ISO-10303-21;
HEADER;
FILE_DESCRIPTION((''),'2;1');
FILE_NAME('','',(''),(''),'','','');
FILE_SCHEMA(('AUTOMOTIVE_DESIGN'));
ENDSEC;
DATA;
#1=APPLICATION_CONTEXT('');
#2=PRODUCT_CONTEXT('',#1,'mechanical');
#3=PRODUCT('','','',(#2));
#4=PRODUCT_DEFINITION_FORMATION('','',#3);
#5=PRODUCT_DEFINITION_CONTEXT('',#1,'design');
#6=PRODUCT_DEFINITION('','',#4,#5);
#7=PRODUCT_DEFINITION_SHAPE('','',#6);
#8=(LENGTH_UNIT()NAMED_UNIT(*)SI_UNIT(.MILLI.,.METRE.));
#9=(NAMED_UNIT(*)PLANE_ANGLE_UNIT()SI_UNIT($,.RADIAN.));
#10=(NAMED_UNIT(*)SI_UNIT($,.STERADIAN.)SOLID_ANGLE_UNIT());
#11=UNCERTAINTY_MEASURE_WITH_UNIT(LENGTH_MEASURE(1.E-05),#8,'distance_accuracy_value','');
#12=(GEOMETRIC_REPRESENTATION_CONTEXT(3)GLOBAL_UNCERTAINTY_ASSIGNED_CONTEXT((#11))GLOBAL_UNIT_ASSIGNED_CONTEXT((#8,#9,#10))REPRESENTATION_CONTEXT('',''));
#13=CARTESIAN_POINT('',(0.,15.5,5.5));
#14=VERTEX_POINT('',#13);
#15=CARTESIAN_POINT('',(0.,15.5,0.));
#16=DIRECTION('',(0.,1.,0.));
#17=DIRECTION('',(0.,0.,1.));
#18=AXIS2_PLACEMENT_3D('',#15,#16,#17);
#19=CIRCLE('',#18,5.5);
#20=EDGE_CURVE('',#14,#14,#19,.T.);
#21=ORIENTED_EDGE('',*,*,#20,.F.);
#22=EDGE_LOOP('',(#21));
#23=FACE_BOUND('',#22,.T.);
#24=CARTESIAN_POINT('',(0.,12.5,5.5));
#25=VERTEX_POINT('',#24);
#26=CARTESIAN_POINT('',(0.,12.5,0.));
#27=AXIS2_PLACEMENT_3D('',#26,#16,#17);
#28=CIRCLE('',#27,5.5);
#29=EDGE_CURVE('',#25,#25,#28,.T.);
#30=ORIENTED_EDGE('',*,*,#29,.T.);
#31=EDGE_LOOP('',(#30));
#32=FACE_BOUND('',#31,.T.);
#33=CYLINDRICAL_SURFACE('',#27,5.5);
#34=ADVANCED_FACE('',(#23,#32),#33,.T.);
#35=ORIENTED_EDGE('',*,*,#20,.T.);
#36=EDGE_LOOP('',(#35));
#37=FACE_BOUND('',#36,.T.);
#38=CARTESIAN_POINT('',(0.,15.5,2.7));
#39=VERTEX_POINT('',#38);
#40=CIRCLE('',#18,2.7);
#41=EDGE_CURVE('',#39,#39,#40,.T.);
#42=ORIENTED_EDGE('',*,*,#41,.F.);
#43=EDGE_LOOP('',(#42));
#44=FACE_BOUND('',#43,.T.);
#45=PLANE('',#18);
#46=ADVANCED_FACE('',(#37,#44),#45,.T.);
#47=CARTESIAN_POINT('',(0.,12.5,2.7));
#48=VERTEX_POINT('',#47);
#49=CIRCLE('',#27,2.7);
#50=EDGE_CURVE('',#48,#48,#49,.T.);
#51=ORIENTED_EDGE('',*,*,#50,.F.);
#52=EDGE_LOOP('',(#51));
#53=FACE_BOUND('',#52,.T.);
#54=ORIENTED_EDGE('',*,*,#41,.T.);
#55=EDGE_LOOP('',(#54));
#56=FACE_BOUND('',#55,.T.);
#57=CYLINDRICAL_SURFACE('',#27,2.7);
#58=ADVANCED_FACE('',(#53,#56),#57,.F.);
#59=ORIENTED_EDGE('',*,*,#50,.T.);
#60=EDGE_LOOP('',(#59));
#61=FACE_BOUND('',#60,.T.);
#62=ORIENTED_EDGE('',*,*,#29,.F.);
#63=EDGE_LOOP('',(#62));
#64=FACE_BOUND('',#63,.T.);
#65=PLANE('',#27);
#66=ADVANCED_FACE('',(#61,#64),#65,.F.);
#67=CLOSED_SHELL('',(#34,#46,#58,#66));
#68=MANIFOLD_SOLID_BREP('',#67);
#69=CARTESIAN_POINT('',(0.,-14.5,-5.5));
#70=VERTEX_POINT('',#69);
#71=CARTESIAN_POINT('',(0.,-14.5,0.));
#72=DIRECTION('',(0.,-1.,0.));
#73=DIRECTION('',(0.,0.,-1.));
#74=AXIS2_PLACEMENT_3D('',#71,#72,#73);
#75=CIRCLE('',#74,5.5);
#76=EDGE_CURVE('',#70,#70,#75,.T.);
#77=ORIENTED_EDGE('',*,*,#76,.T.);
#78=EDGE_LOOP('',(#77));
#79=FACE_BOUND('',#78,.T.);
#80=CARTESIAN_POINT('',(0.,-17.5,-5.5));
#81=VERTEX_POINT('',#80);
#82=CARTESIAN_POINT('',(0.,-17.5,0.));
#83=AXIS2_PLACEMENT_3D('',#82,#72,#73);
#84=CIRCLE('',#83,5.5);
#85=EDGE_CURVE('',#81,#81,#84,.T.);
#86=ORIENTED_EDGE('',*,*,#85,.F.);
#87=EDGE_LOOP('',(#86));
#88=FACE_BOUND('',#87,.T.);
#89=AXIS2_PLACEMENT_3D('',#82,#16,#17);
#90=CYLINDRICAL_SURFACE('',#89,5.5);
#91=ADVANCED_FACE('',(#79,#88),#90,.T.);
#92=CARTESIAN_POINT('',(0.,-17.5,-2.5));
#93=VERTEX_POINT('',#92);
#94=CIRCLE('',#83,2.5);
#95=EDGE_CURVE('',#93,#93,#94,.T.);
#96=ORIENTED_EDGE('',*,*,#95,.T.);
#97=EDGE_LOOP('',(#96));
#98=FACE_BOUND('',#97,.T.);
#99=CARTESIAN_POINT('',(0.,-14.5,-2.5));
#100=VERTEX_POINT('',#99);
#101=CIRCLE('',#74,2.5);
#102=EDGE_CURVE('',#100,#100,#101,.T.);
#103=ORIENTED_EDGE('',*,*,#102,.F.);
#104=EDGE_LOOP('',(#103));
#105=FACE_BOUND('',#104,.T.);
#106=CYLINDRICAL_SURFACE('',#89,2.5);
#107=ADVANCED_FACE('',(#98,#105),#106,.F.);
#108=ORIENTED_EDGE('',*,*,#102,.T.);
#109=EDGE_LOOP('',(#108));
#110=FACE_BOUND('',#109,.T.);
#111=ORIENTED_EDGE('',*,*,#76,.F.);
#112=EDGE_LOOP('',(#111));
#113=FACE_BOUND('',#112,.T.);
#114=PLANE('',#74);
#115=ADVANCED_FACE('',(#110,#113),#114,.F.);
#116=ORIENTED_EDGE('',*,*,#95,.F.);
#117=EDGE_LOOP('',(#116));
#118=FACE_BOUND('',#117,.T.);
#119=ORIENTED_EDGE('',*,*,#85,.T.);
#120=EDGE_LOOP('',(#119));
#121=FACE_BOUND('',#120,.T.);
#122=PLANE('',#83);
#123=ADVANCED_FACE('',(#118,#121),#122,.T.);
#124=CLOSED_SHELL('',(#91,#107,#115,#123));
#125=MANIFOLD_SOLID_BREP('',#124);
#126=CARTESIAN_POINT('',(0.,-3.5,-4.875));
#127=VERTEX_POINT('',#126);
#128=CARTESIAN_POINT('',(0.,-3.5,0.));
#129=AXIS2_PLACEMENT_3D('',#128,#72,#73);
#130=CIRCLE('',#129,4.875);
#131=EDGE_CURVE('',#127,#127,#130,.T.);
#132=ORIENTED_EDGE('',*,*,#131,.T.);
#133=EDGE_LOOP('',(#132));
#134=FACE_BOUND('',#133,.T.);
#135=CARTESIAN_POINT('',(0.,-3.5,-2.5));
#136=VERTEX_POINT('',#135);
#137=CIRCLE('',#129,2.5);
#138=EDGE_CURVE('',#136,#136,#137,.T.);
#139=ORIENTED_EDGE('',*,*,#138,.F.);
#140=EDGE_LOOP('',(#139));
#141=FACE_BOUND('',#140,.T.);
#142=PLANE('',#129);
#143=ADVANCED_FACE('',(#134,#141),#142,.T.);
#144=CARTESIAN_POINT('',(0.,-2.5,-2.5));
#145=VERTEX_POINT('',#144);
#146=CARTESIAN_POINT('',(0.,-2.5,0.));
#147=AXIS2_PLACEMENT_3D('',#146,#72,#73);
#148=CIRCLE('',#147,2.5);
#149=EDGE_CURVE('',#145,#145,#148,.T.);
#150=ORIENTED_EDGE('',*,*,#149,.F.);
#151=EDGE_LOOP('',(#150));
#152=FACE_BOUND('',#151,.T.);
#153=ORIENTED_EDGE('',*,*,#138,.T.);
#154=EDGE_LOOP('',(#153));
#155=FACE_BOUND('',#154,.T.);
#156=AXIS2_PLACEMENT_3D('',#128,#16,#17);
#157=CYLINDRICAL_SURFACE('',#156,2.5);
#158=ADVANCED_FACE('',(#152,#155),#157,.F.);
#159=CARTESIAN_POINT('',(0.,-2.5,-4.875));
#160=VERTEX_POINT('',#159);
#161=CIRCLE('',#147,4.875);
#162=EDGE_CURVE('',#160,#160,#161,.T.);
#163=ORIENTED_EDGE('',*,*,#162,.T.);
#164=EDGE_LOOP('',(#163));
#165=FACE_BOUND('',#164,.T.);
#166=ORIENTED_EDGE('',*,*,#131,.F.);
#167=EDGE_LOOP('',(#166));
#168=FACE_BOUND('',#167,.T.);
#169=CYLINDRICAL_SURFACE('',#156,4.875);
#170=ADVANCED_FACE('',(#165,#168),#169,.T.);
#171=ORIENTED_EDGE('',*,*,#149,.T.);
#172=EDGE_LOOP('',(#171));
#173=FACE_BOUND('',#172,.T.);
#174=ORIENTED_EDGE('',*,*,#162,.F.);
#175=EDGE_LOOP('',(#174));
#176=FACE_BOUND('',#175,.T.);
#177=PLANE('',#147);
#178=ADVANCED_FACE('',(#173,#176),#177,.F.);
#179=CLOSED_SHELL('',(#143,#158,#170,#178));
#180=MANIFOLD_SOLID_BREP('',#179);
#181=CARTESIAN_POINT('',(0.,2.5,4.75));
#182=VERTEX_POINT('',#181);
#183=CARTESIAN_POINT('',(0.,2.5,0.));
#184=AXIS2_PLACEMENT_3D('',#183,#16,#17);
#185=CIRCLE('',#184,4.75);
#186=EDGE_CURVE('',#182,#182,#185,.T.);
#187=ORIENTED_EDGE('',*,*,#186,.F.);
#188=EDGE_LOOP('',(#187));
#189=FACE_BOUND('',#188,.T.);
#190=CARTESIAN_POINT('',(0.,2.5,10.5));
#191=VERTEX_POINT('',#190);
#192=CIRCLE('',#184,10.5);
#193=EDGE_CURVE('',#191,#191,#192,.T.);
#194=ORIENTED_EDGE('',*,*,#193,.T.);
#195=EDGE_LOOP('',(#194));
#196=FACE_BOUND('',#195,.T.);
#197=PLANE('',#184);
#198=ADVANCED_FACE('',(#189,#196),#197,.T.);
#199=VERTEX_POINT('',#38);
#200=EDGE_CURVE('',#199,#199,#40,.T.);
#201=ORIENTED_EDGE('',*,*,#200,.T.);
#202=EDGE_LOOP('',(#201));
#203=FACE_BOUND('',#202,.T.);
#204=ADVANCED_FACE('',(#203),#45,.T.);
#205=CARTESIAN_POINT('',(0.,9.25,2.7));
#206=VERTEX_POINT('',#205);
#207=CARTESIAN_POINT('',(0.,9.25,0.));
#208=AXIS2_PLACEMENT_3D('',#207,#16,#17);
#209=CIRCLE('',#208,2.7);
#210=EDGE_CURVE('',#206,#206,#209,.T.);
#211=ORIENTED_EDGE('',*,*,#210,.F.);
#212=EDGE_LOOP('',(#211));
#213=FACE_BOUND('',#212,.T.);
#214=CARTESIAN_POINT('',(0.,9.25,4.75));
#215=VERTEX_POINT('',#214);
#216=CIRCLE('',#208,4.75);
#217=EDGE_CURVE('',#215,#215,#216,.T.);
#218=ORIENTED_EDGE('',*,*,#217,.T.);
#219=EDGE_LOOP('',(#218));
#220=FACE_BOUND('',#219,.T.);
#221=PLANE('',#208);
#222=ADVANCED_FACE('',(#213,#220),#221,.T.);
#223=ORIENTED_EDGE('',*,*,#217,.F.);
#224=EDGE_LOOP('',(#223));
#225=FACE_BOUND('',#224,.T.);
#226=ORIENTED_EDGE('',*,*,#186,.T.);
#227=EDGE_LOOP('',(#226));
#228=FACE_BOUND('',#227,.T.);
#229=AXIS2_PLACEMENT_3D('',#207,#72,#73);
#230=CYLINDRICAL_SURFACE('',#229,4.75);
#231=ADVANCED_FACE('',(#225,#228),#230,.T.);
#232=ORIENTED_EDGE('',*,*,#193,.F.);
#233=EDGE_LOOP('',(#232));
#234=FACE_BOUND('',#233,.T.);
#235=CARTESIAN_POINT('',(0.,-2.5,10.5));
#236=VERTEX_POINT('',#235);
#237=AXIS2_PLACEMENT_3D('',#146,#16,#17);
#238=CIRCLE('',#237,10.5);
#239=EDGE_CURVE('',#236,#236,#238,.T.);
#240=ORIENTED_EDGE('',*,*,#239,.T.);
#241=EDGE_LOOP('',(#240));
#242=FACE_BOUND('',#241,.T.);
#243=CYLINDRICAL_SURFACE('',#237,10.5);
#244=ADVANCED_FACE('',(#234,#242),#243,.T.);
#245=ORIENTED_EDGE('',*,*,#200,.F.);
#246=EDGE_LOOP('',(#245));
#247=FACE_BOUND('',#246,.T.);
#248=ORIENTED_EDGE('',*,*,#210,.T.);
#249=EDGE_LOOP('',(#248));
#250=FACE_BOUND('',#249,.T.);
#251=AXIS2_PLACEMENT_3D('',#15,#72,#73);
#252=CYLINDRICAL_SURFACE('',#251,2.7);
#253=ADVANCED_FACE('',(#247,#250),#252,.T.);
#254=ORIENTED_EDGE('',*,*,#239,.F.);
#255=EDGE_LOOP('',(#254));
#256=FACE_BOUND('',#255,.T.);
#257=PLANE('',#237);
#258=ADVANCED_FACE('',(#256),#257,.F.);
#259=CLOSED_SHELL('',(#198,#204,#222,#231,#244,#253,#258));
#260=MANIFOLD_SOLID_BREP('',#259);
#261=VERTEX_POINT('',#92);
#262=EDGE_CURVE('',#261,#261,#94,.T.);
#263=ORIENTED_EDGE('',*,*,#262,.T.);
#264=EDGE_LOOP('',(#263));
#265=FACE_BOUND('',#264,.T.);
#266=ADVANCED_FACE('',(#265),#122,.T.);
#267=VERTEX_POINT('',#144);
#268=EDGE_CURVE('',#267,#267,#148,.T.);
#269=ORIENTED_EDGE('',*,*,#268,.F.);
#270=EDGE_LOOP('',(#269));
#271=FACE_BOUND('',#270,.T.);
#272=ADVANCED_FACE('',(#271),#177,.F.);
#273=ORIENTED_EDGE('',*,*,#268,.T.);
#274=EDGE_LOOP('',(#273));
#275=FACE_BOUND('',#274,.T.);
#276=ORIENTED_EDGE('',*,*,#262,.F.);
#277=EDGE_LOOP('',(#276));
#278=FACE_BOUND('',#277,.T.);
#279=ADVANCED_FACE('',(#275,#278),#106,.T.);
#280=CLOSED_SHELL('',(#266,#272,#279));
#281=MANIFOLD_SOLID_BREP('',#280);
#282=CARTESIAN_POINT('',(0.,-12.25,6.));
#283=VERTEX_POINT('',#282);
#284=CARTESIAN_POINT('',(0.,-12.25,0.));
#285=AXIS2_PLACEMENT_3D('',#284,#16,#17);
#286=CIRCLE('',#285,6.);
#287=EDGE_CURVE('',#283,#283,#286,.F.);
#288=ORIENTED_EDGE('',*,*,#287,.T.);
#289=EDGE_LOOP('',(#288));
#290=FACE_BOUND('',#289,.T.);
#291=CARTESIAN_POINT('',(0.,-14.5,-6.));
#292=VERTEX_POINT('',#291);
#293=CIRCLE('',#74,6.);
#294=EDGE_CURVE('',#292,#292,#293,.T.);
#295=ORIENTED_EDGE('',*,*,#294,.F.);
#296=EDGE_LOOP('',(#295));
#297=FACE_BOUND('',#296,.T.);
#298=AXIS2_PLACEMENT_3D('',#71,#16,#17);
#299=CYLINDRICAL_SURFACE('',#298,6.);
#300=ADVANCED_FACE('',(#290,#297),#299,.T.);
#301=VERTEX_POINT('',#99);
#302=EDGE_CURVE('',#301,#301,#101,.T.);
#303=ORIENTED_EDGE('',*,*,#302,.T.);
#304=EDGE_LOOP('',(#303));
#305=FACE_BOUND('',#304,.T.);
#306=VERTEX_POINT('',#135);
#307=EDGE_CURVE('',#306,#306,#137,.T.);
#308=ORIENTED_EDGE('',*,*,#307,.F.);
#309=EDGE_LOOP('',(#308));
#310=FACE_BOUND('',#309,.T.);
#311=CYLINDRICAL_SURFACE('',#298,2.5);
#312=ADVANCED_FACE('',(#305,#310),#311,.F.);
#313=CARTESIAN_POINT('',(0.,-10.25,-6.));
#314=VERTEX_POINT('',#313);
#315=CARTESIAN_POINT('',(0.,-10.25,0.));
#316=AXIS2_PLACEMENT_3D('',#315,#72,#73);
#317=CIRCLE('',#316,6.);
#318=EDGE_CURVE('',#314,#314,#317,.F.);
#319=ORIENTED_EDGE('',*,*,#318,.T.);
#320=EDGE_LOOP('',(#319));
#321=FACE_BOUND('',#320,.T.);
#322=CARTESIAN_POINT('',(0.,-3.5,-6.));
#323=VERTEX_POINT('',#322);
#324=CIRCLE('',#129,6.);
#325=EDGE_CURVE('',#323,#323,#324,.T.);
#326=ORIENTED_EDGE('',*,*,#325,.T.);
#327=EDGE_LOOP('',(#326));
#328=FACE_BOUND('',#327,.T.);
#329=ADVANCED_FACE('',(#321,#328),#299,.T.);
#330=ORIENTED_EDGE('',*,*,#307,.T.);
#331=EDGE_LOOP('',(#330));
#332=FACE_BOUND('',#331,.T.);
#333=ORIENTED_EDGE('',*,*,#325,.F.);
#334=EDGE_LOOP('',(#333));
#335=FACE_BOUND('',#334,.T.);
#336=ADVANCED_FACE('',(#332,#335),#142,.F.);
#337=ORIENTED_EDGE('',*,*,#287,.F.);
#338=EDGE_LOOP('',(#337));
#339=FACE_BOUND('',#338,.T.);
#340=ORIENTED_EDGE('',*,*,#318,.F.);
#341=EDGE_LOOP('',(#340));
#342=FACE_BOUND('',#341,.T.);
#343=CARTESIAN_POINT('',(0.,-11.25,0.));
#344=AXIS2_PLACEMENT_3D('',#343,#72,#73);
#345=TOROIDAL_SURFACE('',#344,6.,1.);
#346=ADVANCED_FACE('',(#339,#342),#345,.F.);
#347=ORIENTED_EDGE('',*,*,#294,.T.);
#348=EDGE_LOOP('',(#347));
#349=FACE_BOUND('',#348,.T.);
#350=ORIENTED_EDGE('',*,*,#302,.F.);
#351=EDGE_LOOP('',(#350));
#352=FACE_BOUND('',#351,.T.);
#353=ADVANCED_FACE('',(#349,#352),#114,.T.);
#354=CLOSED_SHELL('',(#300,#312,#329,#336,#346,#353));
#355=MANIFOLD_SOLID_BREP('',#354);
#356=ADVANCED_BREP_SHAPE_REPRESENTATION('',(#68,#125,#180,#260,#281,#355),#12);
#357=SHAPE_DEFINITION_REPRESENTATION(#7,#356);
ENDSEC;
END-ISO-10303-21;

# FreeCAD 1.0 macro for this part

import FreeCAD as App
import Part
import Sketcher

doc = App.newDocument("Part")
params = doc.addObject("Spreadsheet::Sheet", "Params")
for row, (alias, value) in enumerate([
    ("sketch1_diameter", "21 mm"),
    ("pad1_length", "2.5 mm"),
    ("pad1_length2", "2.5 mm"),
    ("sketch2_diameter", "9.5 mm"),
    ("pad2_length", "6.75 mm"),
    ("sketch3_diameter", "5.4 mm"),
    ("pad3_length", "6.25 mm"),
    ("sketch4_diameter", "11 mm"),
    ("sketch4_diameter2", "5.4 mm"),
    ("pad4_length", "3 mm"),
    ("sketch5_diameter", "5 mm"),
    ("pad5_length", "15 mm"),
    ("sketch6_diameter", "5 mm"),
    ("sketch6_diameter2", "9.75 mm"),
    ("pad6_length", "1 mm"),
    ("sketch7_diameter", "12 mm"),
    ("sketch7_diameter2", "5 mm"),
    ("pad7_length", "11 mm"),
    ("sketch8_diameter", "2 mm"),
    ("groove_angle", "360 deg"),
    ("sketch9_diameter", "11 mm"),
    ("sketch9_diameter2", "5 mm"),
    ("pad8_length", "3 mm"),
], start=1):
    params.set(f"A{row}", alias)
    params.set(f"B{row}", "=" + value)
    params.setAlias(f"B{row}", alias)

body = doc.addObject("PartDesign::Body", "Body")

# Sketch on XZ plane
sketch1 = body.newObject("Sketcher::SketchObject", "Sketch")
sketch1.AttachmentSupport = (doc.getObject("XZ_Plane"), [""])
sketch1.MapMode = "FlatFace"
sketch1.addGeometry(Part.Circle(App.Vector(0, 0, 0), App.Vector(0, 0, 1), 10), False)
sketch1.addConstraint([
    Sketcher.Constraint("Coincident", 0, 3, -1, 1),
    Sketcher.Constraint("Diameter", 0, 21.0),
])
sketch1.setExpression("Constraints[1]", "Params.sketch1_diameter")
pad1 = body.newObject("PartDesign::Pad", "Pad")
pad1.Profile = sketch1
pad1.Type = "TwoLengths"
pad1.setExpression("Length", "Params.pad1_length")
pad1.setExpression("Length2", "Params.pad1_length2")
pad1.Reversed = True

# Sketch on XZ plane
sketch2 = body.newObject("Sketcher::SketchObject", "Sketch001")
sketch2.AttachmentSupport = (doc.getObject("XZ_Plane"), [""])
sketch2.MapMode = "FlatFace"
sketch2.AttachmentOffset = App.Placement(App.Vector(0, 0, -2.5), App.Rotation())
sketch2.addGeometry(Part.Circle(App.Vector(0, 0, 0), App.Vector(0, 0, 1), 4.8), False)
sketch2.addConstraint([
    Sketcher.Constraint("Coincident", 0, 3, -1, 1),
    Sketcher.Constraint("Diameter", 0, 9.5),
])
sketch2.setExpression("Constraints[1]", "Params.sketch2_diameter")
pad2 = body.newObject("PartDesign::Pad", "Pad001")
pad2.Profile = sketch2
pad2.setExpression("Length", "Params.pad2_length")
pad2.Reversed = True

# Sketch on XZ plane
sketch3 = body.newObject("Sketcher::SketchObject", "Sketch002")
sketch3.AttachmentSupport = (doc.getObject("XZ_Plane"), [""])
sketch3.MapMode = "FlatFace"
sketch3.AttachmentOffset = App.Placement(App.Vector(0, 0, -9.25), App.Rotation())
sketch3.addGeometry(Part.Circle(App.Vector(0, 0, 0), App.Vector(0, 0, 1), 2.7), False)
sketch3.addConstraint([
    Sketcher.Constraint("Coincident", 0, 3, -1, 1),
    Sketcher.Constraint("Diameter", 0, 5.4),
])
sketch3.setExpression("Constraints[1]", "Params.sketch3_diameter")
pad3 = body.newObject("PartDesign::Pad", "Pad002")
pad3.Profile = sketch3
pad3.setExpression("Length", "Params.pad3_length")
pad3.Reversed = True
body2 = doc.addObject("PartDesign::Body", "Body001")

# Sketch on XZ plane
sketch4 = body2.newObject("Sketcher::SketchObject", "Sketch003")
sketch4.AttachmentSupport = (doc.getObject("XZ_Plane001"), [""])
sketch4.MapMode = "FlatFace"
sketch4.AttachmentOffset = App.Placement(App.Vector(0, 0, -15.5), App.Rotation())
sketch4.addGeometry([
    Part.Circle(App.Vector(0, 0, 0), App.Vector(0, 0, 1), 5.5),
    Part.Circle(App.Vector(0, 0, 0), App.Vector(0, 0, 1), 2.7),
], False)
sketch4.addConstraint([
    Sketcher.Constraint("Coincident", 0, 3, -1, 1),
    Sketcher.Constraint("Coincident", 1, 3, -1, 1),
    Sketcher.Constraint("Diameter", 0, 11.0),
    Sketcher.Constraint("Diameter", 1, 5.4),
])
sketch4.setExpression("Constraints[2]", "Params.sketch4_diameter")
sketch4.setExpression("Constraints[3]", "Params.sketch4_diameter2")
pad4 = body2.newObject("PartDesign::Pad", "Pad003")
pad4.Profile = sketch4
pad4.setExpression("Length", "Params.pad4_length")
body3 = doc.addObject("PartDesign::Body", "Body002")

# Sketch on XZ plane
sketch5 = body3.newObject("Sketcher::SketchObject", "Sketch004")
sketch5.AttachmentSupport = (doc.getObject("XZ_Plane002"), [""])
sketch5.MapMode = "FlatFace"
sketch5.AttachmentOffset = App.Placement(App.Vector(0, 0, 2.5), App.Rotation())
sketch5.addGeometry(Part.Circle(App.Vector(0, 0, 0), App.Vector(0, 0, 1), 2.5), False)
sketch5.addConstraint([
    Sketcher.Constraint("Coincident", 0, 3, -1, 1),
    Sketcher.Constraint("Diameter", 0, 5.0),
])
sketch5.setExpression("Constraints[1]", "Params.sketch5_diameter")
pad5 = body3.newObject("PartDesign::Pad", "Pad004")
pad5.Profile = sketch5
pad5.setExpression("Length", "Params.pad5_length")
body4 = doc.addObject("PartDesign::Body", "Body003")

# Sketch on XZ plane
sketch6 = body4.newObject("Sketcher::SketchObject", "Sketch005")
sketch6.AttachmentSupport = (doc.getObject("XZ_Plane003"), [""])
sketch6.MapMode = "FlatFace"
sketch6.AttachmentOffset = App.Placement(App.Vector(0, 0, 2.5), App.Rotation())
sketch6.addGeometry([
    Part.Circle(App.Vector(0, 0, 0), App.Vector(0, 0, 1), 4.9),
    Part.Circle(App.Vector(0, 0, 0), App.Vector(0, 0, 1), 2.5),
], False)
sketch6.addConstraint([
    Sketcher.Constraint("Coincident", 0, 3, -1, 1),
    Sketcher.Constraint("Coincident", 1, 3, -1, 1),
    Sketcher.Constraint("Diameter", 1, 5.0),
    Sketcher.Constraint("Diameter", 0, 9.75),
])
sketch6.setExpression("Constraints[2]", "Params.sketch6_diameter")
sketch6.setExpression("Constraints[3]", "Params.sketch6_diameter2")
pad6 = body4.newObject("PartDesign::Pad", "Pad005")
pad6.Profile = sketch6
pad6.setExpression("Length", "Params.pad6_length")
body5 = doc.addObject("PartDesign::Body", "Body004")

# Sketch on XZ plane
sketch7 = body5.newObject("Sketcher::SketchObject", "Sketch006")
sketch7.AttachmentSupport = (doc.getObject("XZ_Plane004"), [""])
sketch7.MapMode = "FlatFace"
sketch7.AttachmentOffset = App.Placement(App.Vector(0, 0, 3.5), App.Rotation())
sketch7.addGeometry([
    Part.Circle(App.Vector(0, 0, 0), App.Vector(0, 0, 1), 6),
    Part.Circle(App.Vector(0, 0, 0), App.Vector(0, 0, 1), 2.5),
], False)
sketch7.addConstraint([
    Sketcher.Constraint("Coincident", 0, 3, -1, 1),
    Sketcher.Constraint("Coincident", 1, 3, -1, 1),
    Sketcher.Constraint("Diameter", 0, 12.0),
    Sketcher.Constraint("Diameter", 1, 5.0),
])
sketch7.setExpression("Constraints[2]", "Params.sketch7_diameter")
sketch7.setExpression("Constraints[3]", "Params.sketch7_diameter2")
pad7 = body5.newObject("PartDesign::Pad", "Pad006")
pad7.Profile = sketch7
pad7.setExpression("Length", "Params.pad7_length")

# Sketch on XY plane
sketch8 = body5.newObject("Sketcher::SketchObject", "Sketch007")
sketch8.AttachmentSupport = (doc.getObject("XY_Plane004"), [""])
sketch8.MapMode = "FlatFace"
sketch8.addGeometry(Part.Circle(App.Vector(6, -11.2, 0), App.Vector(0, 0, 1), 1), False)
sketch8.addConstraint([
    Sketcher.Constraint("Diameter", 0, 2.0),
    Sketcher.Constraint("DistanceX", -1, 1, 0, 3, 6.0),
    Sketcher.Constraint("DistanceY", 0, 3, -1, 1, 11.25),
])
sketch8.setExpression("Constraints[0]", "Params.sketch8_diameter")
groove = body5.newObject("PartDesign::Groove", "Groove")
groove.Profile = sketch8
groove.ReferenceAxis = (sketch8, ["V_Axis"])
groove.setExpression("Angle", "Params.groove_angle")
body6 = doc.addObject("PartDesign::Body", "Body005")

# Sketch on XZ plane
sketch9 = body6.newObject("Sketcher::SketchObject", "Sketch008")
sketch9.AttachmentSupport = (doc.getObject("XZ_Plane005"), [""])
sketch9.MapMode = "FlatFace"
sketch9.AttachmentOffset = App.Placement(App.Vector(0, 0, 14.5), App.Rotation())
sketch9.addGeometry([
    Part.Circle(App.Vector(0, 0, 0), App.Vector(0, 0, 1), 5.5),
    Part.Circle(App.Vector(0, 0, 0), App.Vector(0, 0, 1), 2.5),
], False)
sketch9.addConstraint([
    Sketcher.Constraint("Coincident", 0, 3, -1, 1),
    Sketcher.Constraint("Coincident", 1, 3, -1, 1),
    Sketcher.Constraint("Diameter", 0, 11.0),
    Sketcher.Constraint("Diameter", 1, 5.0),
])
sketch9.setExpression("Constraints[2]", "Params.sketch9_diameter")
sketch9.setExpression("Constraints[3]", "Params.sketch9_diameter2")
pad8 = body6.newObject("PartDesign::Pad", "Pad007")
pad8.Profile = sketch9
pad8.setExpression("Length", "Params.pad8_length")

doc.recompute()
